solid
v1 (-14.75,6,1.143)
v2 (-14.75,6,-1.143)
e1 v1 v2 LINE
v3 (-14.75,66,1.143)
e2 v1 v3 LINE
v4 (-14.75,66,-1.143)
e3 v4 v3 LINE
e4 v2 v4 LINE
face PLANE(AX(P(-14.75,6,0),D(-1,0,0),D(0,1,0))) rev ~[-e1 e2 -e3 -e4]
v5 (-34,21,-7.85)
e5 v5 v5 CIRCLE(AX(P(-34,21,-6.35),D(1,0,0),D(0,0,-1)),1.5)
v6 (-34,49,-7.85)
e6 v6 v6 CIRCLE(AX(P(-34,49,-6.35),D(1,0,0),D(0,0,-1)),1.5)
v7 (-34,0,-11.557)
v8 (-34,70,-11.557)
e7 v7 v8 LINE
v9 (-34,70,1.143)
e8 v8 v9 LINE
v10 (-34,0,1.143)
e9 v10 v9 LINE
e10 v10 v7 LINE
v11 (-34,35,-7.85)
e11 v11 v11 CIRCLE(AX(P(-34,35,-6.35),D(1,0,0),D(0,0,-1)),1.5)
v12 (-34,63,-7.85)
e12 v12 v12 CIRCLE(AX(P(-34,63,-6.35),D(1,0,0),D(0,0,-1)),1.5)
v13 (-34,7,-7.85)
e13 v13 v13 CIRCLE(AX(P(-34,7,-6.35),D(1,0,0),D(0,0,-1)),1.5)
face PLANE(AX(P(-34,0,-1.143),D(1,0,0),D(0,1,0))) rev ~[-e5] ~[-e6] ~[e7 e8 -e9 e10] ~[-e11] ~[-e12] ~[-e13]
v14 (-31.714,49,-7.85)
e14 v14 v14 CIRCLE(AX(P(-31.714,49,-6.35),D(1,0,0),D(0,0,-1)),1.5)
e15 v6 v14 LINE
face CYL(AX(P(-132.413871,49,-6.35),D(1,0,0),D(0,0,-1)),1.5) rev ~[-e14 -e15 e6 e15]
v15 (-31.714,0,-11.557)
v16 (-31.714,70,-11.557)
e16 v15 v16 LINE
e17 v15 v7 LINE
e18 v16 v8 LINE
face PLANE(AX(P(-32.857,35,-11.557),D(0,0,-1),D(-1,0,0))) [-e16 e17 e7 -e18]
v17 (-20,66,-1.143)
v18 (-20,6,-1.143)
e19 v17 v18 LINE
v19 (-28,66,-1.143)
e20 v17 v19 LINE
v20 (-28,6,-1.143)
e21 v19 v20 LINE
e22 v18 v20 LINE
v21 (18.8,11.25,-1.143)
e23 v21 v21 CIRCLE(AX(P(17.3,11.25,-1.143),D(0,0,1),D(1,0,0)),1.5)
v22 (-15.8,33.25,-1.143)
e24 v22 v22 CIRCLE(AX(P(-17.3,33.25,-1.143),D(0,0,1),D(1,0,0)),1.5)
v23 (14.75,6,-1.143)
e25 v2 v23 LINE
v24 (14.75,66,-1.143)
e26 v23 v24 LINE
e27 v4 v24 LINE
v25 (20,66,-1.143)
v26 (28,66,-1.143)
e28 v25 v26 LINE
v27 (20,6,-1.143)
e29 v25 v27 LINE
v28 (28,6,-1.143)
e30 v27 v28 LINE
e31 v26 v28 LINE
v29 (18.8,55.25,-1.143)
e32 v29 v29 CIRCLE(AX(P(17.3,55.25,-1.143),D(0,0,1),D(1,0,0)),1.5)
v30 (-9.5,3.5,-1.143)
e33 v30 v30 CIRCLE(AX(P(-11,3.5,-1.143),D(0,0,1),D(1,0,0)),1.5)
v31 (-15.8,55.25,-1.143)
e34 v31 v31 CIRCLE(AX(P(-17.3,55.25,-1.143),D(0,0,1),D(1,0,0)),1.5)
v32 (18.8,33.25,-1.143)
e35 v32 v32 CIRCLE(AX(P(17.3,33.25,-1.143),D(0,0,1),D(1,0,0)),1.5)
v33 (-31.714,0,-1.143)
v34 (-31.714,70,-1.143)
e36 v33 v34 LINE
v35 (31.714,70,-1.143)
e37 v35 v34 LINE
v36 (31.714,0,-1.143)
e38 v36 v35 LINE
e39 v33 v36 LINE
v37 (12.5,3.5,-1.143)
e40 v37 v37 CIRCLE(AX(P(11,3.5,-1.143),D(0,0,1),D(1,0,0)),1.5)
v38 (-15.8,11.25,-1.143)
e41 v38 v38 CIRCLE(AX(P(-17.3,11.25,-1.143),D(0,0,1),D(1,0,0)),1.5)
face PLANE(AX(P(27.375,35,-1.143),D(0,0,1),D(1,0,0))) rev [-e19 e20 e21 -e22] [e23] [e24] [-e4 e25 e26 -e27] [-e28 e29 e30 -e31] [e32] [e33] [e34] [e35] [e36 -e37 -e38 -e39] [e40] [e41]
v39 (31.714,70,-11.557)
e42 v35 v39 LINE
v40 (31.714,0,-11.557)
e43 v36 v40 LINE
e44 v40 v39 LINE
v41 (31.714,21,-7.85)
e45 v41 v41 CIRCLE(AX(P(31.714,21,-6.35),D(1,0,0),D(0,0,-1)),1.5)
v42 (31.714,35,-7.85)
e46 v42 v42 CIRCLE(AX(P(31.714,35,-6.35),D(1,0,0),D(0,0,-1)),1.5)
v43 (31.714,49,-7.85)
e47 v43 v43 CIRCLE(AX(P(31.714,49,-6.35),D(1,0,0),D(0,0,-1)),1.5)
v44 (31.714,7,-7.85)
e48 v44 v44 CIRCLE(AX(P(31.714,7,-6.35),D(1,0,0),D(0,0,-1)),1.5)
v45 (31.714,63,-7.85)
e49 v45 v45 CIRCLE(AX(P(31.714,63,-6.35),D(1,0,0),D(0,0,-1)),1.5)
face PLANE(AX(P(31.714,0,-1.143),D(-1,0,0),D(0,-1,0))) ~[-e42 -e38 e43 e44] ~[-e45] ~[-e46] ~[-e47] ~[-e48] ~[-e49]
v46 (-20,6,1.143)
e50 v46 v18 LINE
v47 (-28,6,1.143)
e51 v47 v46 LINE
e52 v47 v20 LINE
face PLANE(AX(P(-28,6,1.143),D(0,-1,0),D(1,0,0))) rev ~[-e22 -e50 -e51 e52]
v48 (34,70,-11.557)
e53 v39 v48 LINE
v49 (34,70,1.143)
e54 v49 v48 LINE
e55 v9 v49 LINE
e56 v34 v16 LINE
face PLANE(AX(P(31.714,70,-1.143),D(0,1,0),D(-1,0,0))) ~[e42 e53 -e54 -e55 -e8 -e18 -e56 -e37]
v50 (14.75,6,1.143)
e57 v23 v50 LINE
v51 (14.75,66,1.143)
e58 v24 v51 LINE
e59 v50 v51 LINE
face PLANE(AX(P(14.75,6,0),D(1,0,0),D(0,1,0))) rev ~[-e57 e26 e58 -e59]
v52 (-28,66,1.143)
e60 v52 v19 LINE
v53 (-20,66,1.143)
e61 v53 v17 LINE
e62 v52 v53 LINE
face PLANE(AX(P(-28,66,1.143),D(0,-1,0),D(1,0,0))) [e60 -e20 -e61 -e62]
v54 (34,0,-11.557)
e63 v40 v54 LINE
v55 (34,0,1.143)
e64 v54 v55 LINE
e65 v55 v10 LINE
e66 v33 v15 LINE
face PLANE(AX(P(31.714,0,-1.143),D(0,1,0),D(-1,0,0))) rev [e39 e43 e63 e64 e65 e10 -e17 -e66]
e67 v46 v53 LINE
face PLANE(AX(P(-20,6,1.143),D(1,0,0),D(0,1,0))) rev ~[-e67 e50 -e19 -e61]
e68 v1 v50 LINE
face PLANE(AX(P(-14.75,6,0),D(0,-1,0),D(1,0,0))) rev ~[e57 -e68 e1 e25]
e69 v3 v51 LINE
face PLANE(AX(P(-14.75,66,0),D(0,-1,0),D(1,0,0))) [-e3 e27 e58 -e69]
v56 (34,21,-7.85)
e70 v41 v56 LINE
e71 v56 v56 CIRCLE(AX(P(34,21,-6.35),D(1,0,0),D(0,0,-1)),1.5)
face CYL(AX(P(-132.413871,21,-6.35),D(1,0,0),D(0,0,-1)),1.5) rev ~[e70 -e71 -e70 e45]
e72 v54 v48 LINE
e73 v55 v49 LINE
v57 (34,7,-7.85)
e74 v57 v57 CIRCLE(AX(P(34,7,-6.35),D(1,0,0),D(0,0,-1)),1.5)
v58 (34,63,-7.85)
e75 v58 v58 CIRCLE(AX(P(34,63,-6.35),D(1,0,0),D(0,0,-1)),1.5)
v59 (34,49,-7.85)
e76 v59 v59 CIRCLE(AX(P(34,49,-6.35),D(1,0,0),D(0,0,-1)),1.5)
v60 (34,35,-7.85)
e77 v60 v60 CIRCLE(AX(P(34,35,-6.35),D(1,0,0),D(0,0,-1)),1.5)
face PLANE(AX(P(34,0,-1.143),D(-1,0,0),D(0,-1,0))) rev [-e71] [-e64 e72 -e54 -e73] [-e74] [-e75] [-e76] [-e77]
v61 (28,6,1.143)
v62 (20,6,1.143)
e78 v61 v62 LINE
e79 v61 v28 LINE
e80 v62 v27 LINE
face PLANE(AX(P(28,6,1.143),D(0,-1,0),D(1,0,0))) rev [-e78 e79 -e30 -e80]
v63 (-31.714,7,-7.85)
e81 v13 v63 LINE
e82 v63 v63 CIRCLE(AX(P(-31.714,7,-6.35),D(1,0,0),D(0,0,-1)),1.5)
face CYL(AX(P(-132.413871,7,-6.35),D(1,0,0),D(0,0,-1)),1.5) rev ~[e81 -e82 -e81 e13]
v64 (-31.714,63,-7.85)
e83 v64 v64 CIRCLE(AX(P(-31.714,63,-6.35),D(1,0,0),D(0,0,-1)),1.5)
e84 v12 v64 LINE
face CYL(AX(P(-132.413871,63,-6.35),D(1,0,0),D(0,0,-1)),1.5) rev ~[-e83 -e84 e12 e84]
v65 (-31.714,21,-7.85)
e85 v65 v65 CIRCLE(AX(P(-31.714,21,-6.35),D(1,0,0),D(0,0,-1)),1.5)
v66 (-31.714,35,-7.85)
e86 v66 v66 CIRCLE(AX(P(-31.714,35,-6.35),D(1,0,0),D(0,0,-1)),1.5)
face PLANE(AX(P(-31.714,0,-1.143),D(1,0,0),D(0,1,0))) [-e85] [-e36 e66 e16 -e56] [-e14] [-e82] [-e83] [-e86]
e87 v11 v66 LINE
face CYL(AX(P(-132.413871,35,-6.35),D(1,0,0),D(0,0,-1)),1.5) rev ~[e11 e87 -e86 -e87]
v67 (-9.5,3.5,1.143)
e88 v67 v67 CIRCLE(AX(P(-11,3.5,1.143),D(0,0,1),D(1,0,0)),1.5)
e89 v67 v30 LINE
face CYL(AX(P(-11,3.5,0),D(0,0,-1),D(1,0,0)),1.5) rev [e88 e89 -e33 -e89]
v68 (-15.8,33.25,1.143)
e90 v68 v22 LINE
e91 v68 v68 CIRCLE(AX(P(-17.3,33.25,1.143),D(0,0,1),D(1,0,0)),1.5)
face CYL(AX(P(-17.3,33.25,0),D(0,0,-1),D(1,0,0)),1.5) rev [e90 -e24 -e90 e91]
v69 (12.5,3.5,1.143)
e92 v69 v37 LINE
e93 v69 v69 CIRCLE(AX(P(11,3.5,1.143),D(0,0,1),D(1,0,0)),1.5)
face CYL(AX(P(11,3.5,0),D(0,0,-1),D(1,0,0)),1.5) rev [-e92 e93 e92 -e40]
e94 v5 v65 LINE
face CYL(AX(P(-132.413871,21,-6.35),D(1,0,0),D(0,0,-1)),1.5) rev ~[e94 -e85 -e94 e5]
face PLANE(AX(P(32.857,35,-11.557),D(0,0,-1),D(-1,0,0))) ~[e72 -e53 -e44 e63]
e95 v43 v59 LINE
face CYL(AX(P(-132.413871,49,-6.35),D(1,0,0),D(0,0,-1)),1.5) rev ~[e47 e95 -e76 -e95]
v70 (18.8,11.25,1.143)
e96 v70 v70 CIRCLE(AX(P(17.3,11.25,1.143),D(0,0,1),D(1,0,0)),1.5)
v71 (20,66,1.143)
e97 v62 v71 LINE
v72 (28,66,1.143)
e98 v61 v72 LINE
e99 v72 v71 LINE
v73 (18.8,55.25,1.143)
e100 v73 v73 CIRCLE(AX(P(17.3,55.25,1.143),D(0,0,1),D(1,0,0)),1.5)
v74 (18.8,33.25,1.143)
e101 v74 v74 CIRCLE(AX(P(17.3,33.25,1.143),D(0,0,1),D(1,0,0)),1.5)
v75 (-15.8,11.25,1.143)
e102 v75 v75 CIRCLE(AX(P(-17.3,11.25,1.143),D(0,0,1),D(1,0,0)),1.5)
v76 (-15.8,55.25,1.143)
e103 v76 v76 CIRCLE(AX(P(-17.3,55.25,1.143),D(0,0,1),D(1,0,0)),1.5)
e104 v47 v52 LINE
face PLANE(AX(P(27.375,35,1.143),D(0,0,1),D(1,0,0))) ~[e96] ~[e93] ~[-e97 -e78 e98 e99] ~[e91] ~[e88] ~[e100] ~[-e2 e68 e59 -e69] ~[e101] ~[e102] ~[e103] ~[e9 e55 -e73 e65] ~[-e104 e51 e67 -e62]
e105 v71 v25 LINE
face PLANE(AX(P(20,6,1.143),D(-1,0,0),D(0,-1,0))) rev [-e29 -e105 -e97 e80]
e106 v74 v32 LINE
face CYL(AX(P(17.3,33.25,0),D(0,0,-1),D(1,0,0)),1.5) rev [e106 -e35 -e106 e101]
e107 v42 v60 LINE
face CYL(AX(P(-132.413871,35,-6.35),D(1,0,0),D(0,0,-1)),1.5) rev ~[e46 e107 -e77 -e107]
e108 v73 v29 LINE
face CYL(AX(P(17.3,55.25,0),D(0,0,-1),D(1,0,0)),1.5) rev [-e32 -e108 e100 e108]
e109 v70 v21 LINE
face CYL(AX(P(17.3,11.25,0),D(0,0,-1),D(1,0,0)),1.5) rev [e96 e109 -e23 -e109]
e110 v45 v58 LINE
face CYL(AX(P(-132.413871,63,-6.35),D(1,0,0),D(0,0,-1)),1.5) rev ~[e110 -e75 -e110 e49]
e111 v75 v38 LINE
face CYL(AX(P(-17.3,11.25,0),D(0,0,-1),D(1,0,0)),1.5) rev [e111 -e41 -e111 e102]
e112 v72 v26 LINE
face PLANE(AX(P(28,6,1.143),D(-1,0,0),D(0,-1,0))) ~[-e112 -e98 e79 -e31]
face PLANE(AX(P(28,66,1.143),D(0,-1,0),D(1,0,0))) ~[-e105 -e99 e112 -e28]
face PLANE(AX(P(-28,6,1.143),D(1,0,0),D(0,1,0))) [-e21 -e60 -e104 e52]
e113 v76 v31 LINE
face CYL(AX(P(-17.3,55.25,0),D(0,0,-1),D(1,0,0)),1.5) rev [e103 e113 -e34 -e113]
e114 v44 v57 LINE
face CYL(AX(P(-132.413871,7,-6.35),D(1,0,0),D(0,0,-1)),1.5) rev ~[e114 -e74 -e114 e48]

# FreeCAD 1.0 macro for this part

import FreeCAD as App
import Part
import Sketcher
from FreeCAD import Vector

doc = App.newDocument("Part")
params = doc.addObject("Spreadsheet::Sheet", "Params")
for row, (alias, value) in enumerate([
    ("sketch1_diameter", "3 mm"),
    ("sketch1_height", "70 mm"),
    ("sketch1_height2", "60 mm"),
    ("sketch1_width", "41.5 mm"),
    ("sketch1_width2", "29.5 mm"),
    ("pad1_length", "2.286 mm"),
    ("sketch2_height", "70 mm"),
    ("sketch2_width", "13.25 mm"),
    ("pad2_length", "2.286 mm"),
    ("sketch3_width", "8 mm"),
    ("sketch3_height", "60 mm"),
    ("pocket1_length", "10 mm"),
    ("sketch4_height", "70 mm"),
    ("pad3_length", "10.414 mm"),
    ("sketch5_diameter", "3 mm"),
    ("hole_diameter", "3 mm"),
], start=1):
    params.set(f"A{row}", alias)
    params.set(f"B{row}", "=" + value)
    params.setAlias(f"B{row}", alias)

body = doc.addObject("PartDesign::Body", "Body")

# Sketch on XY plane
sketch1 = body.newObject("Sketcher::SketchObject", "Sketch")
sketch1.AttachmentSupport = (doc.getObject("XY_Plane"), [""])
sketch1.MapMode = "FlatFace"
sketch1.addGeometry([
    Part.LineSegment(Vector(-20.75, 70, 0), Vector(-20.75, 0, 0)),  # 0
    Part.LineSegment(Vector(-20.75, 0, 0), Vector(20.75, 0, 0)),  # 1
    Part.LineSegment(Vector(20.75, 0, 0), Vector(20.75, 70, 0)),  # 2
    Part.LineSegment(Vector(20.75, 70, 0), Vector(-20.75, 70, 0)),  # 3
    Part.Circle(Vector(-11, 3.5, 0), Vector(0, 0, 1), 1.5),  # 4
    Part.Circle(Vector(-17.3, 11.25, 0), Vector(0, 0, 1), 1.5),  # 5
    Part.Circle(Vector(-17.3, 33.25, 0), Vector(0, 0, 1), 1.5),  # 6
    Part.Circle(Vector(11, 3.5, 0), Vector(0, 0, 1), 1.5),  # 7
    Part.Circle(Vector(17.3, 11.25, 0), Vector(0, 0, 1), 1.5),  # 8
    Part.Circle(Vector(17.3, 33.25, 0), Vector(0, 0, 1), 1.5),  # 9
    Part.Circle(Vector(-17.3, 55.25, 0), Vector(0, 0, 1), 1.5),  # 10
    Part.LineSegment(Vector(14.75, 6, 0), Vector(-14.75, 6, 0)),  # 11
    Part.LineSegment(Vector(-14.75, 6, 0), Vector(-14.75, 66, 0)),  # 12
    Part.LineSegment(Vector(-14.75, 66, 0), Vector(14.75, 66, 0)),  # 13
    Part.LineSegment(Vector(14.75, 66, 0), Vector(14.75, 6, 0)),  # 14
    Part.Circle(Vector(17.3, 55.25, 0), Vector(0, 0, 1), 1.5),  # 15
], False)
sketch1.addConstraint([
    Sketcher.Constraint("Coincident", 0, 2, 1, 1),
    Sketcher.Constraint("Coincident", 1, 2, 2, 1),
    Sketcher.Constraint("Coincident", 2, 2, 3, 1),
    Sketcher.Constraint("Coincident", 3, 2, 0, 1),
    Sketcher.Constraint("Coincident", 11, 2, 12, 1),
    Sketcher.Constraint("Coincident", 12, 2, 13, 1),
    Sketcher.Constraint("Coincident", 13, 2, 14, 1),
    Sketcher.Constraint("Coincident", 14, 2, 11, 1),
    Sketcher.Constraint("Vertical", 0),
    Sketcher.Constraint("Horizontal", 1),
    Sketcher.Constraint("Vertical", 2),
    Sketcher.Constraint("Horizontal", 3),
    Sketcher.Constraint("Horizontal", 11),
    Sketcher.Constraint("Vertical", 12),
    Sketcher.Constraint("Horizontal", 13),
    Sketcher.Constraint("Vertical", 14),
    Sketcher.Constraint("Equal", 4, 5),
    Sketcher.Constraint("Equal", 5, 6),
    Sketcher.Constraint("Equal", 6, 7),
    Sketcher.Constraint("Equal", 7, 8),
    Sketcher.Constraint("Equal", 8, 9),
    Sketcher.Constraint("Equal", 9, 10),
    Sketcher.Constraint("Equal", 10, 15),
    Sketcher.Constraint("Symmetric", 0, 2, 1, 2, -1, 1),
    Sketcher.Constraint("Symmetric", 4, 3, 7, 3, -2),
    Sketcher.Constraint("Symmetric", 5, 3, 8, 3, -2),
    Sketcher.Constraint("Symmetric", 6, 3, 9, 3, -2),
    Sketcher.Constraint("Symmetric", 10, 3, 15, 3, -2),
    Sketcher.Constraint("Vertical", 5, 3, 6, 3),
    Sketcher.Constraint("Vertical", 6, 3, 10, 3),
    Sketcher.Constraint("Diameter", 4, 3.0),
    Sketcher.Constraint("DistanceY", 0, 2, 0, 1, 70.0),
    Sketcher.Constraint("DistanceY", 12, 1, 12, 2, 60.0),
    Sketcher.Constraint("DistanceX", 1, 1, 1, 2, 41.5),
    Sketcher.Constraint("DistanceX", 11, 2, 11, 1, 29.5),
    Sketcher.Constraint("DistanceX", 4, 3, -1, 1, 11.0),
    Sketcher.Constraint("DistanceY", -1, 1, 11, 2, 6.0),
    Sketcher.Constraint("DistanceY", 5, 3, 6, 3, 22.0),
    Sketcher.Constraint("DistanceY", 6, 3, 10, 3, 22.0),
    Sketcher.Constraint("DistanceX", 0, 2, 11, 2, 6.0),
    Sketcher.Constraint("DistanceY", -1, 1, 4, 3, 3.5),
    Sketcher.Constraint("DistanceX", 5, 3, -1, 1, 17.3),
    Sketcher.Constraint("DistanceY", -1, 1, 5, 3, 11.25),
])
sketch1.setExpression("Constraints[30]", "Params.sketch1_diameter")
sketch1.setExpression("Constraints[31]", "Params.sketch1_height")
sketch1.setExpression("Constraints[32]", "Params.sketch1_height2")
sketch1.setExpression("Constraints[33]", "Params.sketch1_width")
sketch1.setExpression("Constraints[34]", "Params.sketch1_width2")
pad1 = body.newObject("PartDesign::Pad", "Pad")
pad1.Profile = sketch1
pad1.setExpression("Length", "Params.pad1_length")
pad1.Midplane = True

# Sketch on XY plane
sketch2 = body.newObject("Sketcher::SketchObject", "Sketch001")
sketch2.AttachmentSupport = (doc.getObject("XY_Plane"), [""])
sketch2.MapMode = "FlatFace"
sketch2.AttachmentOffset = App.Placement(Vector(0, 0, 1.143), App.Rotation())
sketch2.addGeometry([
    Part.LineSegment(Vector(-34, 70, 0), Vector(-34, 0, 0)),
    Part.LineSegment(Vector(-34, 0, 0), Vector(-20.75, 0, 0)),
    Part.LineSegment(Vector(-20.75, 0, 0), Vector(-20.75, 70, 0)),
    Part.LineSegment(Vector(-20.75, 70, 0), Vector(-34, 70, 0)),
], False)
sketch2.addConstraint([
    Sketcher.Constraint("Coincident", 0, 2, 1, 1),
    Sketcher.Constraint("Coincident", 1, 2, 2, 1),
    Sketcher.Constraint("Coincident", 2, 2, 3, 1),
    Sketcher.Constraint("Coincident", 3, 2, 0, 1),
    Sketcher.Constraint("Vertical", 0),
    Sketcher.Constraint("Horizontal", 1),
    Sketcher.Constraint("Vertical", 2),
    Sketcher.Constraint("Horizontal", 3),
    Sketcher.Constraint("PointOnObject", 0, 2, -1),
    Sketcher.Constraint("DistanceY", 0, 2, 0, 1, 70.0),
    Sketcher.Constraint("DistanceX", 0, 2, -1, 1, 34.0),
    Sketcher.Constraint("DistanceX", 1, 1, 1, 2, 13.25),
])
sketch2.setExpression("Constraints[9]", "Params.sketch2_height")
sketch2.setExpression("Constraints[11]", "Params.sketch2_width")
pad2 = body.newObject("PartDesign::Pad", "Pad001")
pad2.Profile = sketch2
pad2.setExpression("Length", "Params.pad2_length")
pad2.Reversed = True
doc.recompute()

mirrored = body.newObject("PartDesign::Mirrored", "Mirrored")
mirrored.Originals = [pad2]
mirrored.MirrorPlane = (doc.getObject("YZ_Plane"), [""])
body.Tip = mirrored

# Sketch on XY plane
sketch3 = body.newObject("Sketcher::SketchObject", "Sketch002")
sketch3.AttachmentSupport = (doc.getObject("XY_Plane"), [""])
sketch3.MapMode = "FlatFace"
sketch3.AttachmentOffset = App.Placement(Vector(0, 0, 1.143), App.Rotation())
sketch3.addGeometry([
    Part.LineSegment(Vector(-28, 66, 0), Vector(-28, 6, 0)),
    Part.LineSegment(Vector(-28, 6, 0), Vector(-20, 6, 0)),
    Part.LineSegment(Vector(-20, 6, 0), Vector(-20, 66, 0)),
    Part.LineSegment(Vector(-20, 66, 0), Vector(-28, 66, 0)),
], False)
sketch3.addConstraint([
    Sketcher.Constraint("Coincident", 0, 2, 1, 1),
    Sketcher.Constraint("Coincident", 1, 2, 2, 1),
    Sketcher.Constraint("Coincident", 2, 2, 3, 1),
    Sketcher.Constraint("Coincident", 3, 2, 0, 1),
    Sketcher.Constraint("Vertical", 0),
    Sketcher.Constraint("Horizontal", 1),
    Sketcher.Constraint("Vertical", 2),
    Sketcher.Constraint("Horizontal", 3),
    Sketcher.Constraint("DistanceX", 1, 1, 1, 2, 8.0),
    Sketcher.Constraint("DistanceY", 0, 2, 0, 1, 60.0),
    Sketcher.Constraint("DistanceX", 0, 2, -1, 1, 28.0),
    Sketcher.Constraint("DistanceY", -1, 1, 0, 2, 6.0),
])
sketch3.setExpression("Constraints[8]", "Params.sketch3_width")
sketch3.setExpression("Constraints[9]", "Params.sketch3_height")
pocket1 = body.newObject("PartDesign::Pocket", "Pocket")
pocket1.Profile = sketch3
pocket1.setExpression("Length", "Params.pocket1_length")
doc.recompute()

mirrored2 = body.newObject("PartDesign::Mirrored", "Mirrored001")
mirrored2.Originals = [pocket1]
mirrored2.MirrorPlane = (doc.getObject("YZ_Plane"), [""])
body.Tip = mirrored2

# Sketch on XY plane
sketch4 = body.newObject("Sketcher::SketchObject", "Sketch003")
sketch4.AttachmentSupport = (doc.getObject("XY_Plane"), [""])
sketch4.MapMode = "FlatFace"
sketch4.AttachmentOffset = App.Placement(Vector(0, 0, -1.143), App.Rotation())
sketch4.addGeometry([
    Part.LineSegment(Vector(-31.714, 70, 0), Vector(-31.714, 0, 0)),
    Part.LineSegment(Vector(-31.714, 0, 0), Vector(-34, 0, 0)),
    Part.LineSegment(Vector(-34, 0, 0), Vector(-34, 70, 0)),
    Part.LineSegment(Vector(-34, 70, 0), Vector(-31.714, 70, 0)),
], False)
sketch4.addConstraint([
    Sketcher.Constraint("Coincident", 0, 2, 1, 1),
    Sketcher.Constraint("Coincident", 1, 2, 2, 1),
    Sketcher.Constraint("Coincident", 2, 2, 3, 1),
    Sketcher.Constraint("Coincident", 3, 2, 0, 1),
    Sketcher.Constraint("Vertical", 0),
    Sketcher.Constraint("Horizontal", 1),
    Sketcher.Constraint("Vertical", 2),
    Sketcher.Constraint("Horizontal", 3),
    Sketcher.Constraint("PointOnObject", 0, 2, -1),
    Sketcher.Constraint("DistanceY", 0, 2, 0, 1, 70.0),
    Sketcher.Constraint("DistanceX", 1, 2, -1, 1, 34.0),
    Sketcher.Constraint("DistanceX", 1, 2, 1, 1, 2.286),
])
sketch4.setExpression("Constraints[9]", "Params.sketch4_height")
pad3 = body.newObject("PartDesign::Pad", "Pad002")
pad3.Profile = sketch4
pad3.setExpression("Length", "Params.pad3_length")
pad3.Reversed = True
doc.recompute()

mirrored3 = body.newObject("PartDesign::Mirrored", "Mirrored002")
mirrored3.Originals = [pad3]
mirrored3.MirrorPlane = (doc.getObject("YZ_Plane"), [""])
body.Tip = mirrored3

# Sketch on YZ plane
sketch5 = body.newObject("Sketcher::SketchObject", "Sketch004")
sketch5.AttachmentSupport = (doc.getObject("YZ_Plane"), [""])
sketch5.MapMode = "FlatFace"
sketch5.AttachmentOffset = App.Placement(Vector(0, 0, -34), App.Rotation())
sketch5.addGeometry([
    Part.Circle(Vector(35, -6.35, 0), Vector(0, 0, 1), 1.5),  # 0
    Part.Circle(Vector(21, -6.35, 0), Vector(0, 0, 1), 1.5),  # 1
    Part.Circle(Vector(49, -6.35, 0), Vector(0, 0, 1), 1.5),  # 2
    Part.Circle(Vector(63, -6.35, 0), Vector(0, 0, 1), 1.5),  # 3
    Part.Circle(Vector(7, -6.35, 0), Vector(0, 0, 1), 1.5),  # 4
], False)
sketch5.addConstraint([
    Sketcher.Constraint("Equal", 0, 1),
    Sketcher.Constraint("Equal", 1, 2),
    Sketcher.Constraint("Equal", 2, 3),
    Sketcher.Constraint("Equal", 3, 4),
    Sketcher.Constraint("Horizontal", 0, 3, 1, 3),
    Sketcher.Constraint("Horizontal", 1, 3, 2, 3),
    Sketcher.Constraint("Horizontal", 2, 3, 3, 3),
    Sketcher.Constraint("Horizontal", 3, 3, 4, 3),
    Sketcher.Constraint("Diameter", 0, 3.0),
    Sketcher.Constraint("DistanceX", -1, 1, 0, 3, 35.0),
    Sketcher.Constraint("DistanceX", -1, 1, 1, 3, 21.0),
    Sketcher.Constraint("DistanceX", -1, 1, 2, 3, 49.0),
    Sketcher.Constraint("DistanceX", -1, 1, 3, 3, 63.0),
    Sketcher.Constraint("DistanceX", -1, 1, 4, 3, 7.0),
    Sketcher.Constraint("DistanceY", 0, 3, -1, 1, 6.35),
])
sketch5.setExpression("Constraints[8]", "Params.sketch5_diameter")
doc.recompute()
hole = body.newObject("PartDesign::Hole", "Hole")
hole.Profile = sketch5
hole.ThreadType = "None"
hole.setExpression("Diameter", "Params.hole_diameter")
hole.DepthType = "ThroughAll"
hole.Reversed = True

doc.recompute()
